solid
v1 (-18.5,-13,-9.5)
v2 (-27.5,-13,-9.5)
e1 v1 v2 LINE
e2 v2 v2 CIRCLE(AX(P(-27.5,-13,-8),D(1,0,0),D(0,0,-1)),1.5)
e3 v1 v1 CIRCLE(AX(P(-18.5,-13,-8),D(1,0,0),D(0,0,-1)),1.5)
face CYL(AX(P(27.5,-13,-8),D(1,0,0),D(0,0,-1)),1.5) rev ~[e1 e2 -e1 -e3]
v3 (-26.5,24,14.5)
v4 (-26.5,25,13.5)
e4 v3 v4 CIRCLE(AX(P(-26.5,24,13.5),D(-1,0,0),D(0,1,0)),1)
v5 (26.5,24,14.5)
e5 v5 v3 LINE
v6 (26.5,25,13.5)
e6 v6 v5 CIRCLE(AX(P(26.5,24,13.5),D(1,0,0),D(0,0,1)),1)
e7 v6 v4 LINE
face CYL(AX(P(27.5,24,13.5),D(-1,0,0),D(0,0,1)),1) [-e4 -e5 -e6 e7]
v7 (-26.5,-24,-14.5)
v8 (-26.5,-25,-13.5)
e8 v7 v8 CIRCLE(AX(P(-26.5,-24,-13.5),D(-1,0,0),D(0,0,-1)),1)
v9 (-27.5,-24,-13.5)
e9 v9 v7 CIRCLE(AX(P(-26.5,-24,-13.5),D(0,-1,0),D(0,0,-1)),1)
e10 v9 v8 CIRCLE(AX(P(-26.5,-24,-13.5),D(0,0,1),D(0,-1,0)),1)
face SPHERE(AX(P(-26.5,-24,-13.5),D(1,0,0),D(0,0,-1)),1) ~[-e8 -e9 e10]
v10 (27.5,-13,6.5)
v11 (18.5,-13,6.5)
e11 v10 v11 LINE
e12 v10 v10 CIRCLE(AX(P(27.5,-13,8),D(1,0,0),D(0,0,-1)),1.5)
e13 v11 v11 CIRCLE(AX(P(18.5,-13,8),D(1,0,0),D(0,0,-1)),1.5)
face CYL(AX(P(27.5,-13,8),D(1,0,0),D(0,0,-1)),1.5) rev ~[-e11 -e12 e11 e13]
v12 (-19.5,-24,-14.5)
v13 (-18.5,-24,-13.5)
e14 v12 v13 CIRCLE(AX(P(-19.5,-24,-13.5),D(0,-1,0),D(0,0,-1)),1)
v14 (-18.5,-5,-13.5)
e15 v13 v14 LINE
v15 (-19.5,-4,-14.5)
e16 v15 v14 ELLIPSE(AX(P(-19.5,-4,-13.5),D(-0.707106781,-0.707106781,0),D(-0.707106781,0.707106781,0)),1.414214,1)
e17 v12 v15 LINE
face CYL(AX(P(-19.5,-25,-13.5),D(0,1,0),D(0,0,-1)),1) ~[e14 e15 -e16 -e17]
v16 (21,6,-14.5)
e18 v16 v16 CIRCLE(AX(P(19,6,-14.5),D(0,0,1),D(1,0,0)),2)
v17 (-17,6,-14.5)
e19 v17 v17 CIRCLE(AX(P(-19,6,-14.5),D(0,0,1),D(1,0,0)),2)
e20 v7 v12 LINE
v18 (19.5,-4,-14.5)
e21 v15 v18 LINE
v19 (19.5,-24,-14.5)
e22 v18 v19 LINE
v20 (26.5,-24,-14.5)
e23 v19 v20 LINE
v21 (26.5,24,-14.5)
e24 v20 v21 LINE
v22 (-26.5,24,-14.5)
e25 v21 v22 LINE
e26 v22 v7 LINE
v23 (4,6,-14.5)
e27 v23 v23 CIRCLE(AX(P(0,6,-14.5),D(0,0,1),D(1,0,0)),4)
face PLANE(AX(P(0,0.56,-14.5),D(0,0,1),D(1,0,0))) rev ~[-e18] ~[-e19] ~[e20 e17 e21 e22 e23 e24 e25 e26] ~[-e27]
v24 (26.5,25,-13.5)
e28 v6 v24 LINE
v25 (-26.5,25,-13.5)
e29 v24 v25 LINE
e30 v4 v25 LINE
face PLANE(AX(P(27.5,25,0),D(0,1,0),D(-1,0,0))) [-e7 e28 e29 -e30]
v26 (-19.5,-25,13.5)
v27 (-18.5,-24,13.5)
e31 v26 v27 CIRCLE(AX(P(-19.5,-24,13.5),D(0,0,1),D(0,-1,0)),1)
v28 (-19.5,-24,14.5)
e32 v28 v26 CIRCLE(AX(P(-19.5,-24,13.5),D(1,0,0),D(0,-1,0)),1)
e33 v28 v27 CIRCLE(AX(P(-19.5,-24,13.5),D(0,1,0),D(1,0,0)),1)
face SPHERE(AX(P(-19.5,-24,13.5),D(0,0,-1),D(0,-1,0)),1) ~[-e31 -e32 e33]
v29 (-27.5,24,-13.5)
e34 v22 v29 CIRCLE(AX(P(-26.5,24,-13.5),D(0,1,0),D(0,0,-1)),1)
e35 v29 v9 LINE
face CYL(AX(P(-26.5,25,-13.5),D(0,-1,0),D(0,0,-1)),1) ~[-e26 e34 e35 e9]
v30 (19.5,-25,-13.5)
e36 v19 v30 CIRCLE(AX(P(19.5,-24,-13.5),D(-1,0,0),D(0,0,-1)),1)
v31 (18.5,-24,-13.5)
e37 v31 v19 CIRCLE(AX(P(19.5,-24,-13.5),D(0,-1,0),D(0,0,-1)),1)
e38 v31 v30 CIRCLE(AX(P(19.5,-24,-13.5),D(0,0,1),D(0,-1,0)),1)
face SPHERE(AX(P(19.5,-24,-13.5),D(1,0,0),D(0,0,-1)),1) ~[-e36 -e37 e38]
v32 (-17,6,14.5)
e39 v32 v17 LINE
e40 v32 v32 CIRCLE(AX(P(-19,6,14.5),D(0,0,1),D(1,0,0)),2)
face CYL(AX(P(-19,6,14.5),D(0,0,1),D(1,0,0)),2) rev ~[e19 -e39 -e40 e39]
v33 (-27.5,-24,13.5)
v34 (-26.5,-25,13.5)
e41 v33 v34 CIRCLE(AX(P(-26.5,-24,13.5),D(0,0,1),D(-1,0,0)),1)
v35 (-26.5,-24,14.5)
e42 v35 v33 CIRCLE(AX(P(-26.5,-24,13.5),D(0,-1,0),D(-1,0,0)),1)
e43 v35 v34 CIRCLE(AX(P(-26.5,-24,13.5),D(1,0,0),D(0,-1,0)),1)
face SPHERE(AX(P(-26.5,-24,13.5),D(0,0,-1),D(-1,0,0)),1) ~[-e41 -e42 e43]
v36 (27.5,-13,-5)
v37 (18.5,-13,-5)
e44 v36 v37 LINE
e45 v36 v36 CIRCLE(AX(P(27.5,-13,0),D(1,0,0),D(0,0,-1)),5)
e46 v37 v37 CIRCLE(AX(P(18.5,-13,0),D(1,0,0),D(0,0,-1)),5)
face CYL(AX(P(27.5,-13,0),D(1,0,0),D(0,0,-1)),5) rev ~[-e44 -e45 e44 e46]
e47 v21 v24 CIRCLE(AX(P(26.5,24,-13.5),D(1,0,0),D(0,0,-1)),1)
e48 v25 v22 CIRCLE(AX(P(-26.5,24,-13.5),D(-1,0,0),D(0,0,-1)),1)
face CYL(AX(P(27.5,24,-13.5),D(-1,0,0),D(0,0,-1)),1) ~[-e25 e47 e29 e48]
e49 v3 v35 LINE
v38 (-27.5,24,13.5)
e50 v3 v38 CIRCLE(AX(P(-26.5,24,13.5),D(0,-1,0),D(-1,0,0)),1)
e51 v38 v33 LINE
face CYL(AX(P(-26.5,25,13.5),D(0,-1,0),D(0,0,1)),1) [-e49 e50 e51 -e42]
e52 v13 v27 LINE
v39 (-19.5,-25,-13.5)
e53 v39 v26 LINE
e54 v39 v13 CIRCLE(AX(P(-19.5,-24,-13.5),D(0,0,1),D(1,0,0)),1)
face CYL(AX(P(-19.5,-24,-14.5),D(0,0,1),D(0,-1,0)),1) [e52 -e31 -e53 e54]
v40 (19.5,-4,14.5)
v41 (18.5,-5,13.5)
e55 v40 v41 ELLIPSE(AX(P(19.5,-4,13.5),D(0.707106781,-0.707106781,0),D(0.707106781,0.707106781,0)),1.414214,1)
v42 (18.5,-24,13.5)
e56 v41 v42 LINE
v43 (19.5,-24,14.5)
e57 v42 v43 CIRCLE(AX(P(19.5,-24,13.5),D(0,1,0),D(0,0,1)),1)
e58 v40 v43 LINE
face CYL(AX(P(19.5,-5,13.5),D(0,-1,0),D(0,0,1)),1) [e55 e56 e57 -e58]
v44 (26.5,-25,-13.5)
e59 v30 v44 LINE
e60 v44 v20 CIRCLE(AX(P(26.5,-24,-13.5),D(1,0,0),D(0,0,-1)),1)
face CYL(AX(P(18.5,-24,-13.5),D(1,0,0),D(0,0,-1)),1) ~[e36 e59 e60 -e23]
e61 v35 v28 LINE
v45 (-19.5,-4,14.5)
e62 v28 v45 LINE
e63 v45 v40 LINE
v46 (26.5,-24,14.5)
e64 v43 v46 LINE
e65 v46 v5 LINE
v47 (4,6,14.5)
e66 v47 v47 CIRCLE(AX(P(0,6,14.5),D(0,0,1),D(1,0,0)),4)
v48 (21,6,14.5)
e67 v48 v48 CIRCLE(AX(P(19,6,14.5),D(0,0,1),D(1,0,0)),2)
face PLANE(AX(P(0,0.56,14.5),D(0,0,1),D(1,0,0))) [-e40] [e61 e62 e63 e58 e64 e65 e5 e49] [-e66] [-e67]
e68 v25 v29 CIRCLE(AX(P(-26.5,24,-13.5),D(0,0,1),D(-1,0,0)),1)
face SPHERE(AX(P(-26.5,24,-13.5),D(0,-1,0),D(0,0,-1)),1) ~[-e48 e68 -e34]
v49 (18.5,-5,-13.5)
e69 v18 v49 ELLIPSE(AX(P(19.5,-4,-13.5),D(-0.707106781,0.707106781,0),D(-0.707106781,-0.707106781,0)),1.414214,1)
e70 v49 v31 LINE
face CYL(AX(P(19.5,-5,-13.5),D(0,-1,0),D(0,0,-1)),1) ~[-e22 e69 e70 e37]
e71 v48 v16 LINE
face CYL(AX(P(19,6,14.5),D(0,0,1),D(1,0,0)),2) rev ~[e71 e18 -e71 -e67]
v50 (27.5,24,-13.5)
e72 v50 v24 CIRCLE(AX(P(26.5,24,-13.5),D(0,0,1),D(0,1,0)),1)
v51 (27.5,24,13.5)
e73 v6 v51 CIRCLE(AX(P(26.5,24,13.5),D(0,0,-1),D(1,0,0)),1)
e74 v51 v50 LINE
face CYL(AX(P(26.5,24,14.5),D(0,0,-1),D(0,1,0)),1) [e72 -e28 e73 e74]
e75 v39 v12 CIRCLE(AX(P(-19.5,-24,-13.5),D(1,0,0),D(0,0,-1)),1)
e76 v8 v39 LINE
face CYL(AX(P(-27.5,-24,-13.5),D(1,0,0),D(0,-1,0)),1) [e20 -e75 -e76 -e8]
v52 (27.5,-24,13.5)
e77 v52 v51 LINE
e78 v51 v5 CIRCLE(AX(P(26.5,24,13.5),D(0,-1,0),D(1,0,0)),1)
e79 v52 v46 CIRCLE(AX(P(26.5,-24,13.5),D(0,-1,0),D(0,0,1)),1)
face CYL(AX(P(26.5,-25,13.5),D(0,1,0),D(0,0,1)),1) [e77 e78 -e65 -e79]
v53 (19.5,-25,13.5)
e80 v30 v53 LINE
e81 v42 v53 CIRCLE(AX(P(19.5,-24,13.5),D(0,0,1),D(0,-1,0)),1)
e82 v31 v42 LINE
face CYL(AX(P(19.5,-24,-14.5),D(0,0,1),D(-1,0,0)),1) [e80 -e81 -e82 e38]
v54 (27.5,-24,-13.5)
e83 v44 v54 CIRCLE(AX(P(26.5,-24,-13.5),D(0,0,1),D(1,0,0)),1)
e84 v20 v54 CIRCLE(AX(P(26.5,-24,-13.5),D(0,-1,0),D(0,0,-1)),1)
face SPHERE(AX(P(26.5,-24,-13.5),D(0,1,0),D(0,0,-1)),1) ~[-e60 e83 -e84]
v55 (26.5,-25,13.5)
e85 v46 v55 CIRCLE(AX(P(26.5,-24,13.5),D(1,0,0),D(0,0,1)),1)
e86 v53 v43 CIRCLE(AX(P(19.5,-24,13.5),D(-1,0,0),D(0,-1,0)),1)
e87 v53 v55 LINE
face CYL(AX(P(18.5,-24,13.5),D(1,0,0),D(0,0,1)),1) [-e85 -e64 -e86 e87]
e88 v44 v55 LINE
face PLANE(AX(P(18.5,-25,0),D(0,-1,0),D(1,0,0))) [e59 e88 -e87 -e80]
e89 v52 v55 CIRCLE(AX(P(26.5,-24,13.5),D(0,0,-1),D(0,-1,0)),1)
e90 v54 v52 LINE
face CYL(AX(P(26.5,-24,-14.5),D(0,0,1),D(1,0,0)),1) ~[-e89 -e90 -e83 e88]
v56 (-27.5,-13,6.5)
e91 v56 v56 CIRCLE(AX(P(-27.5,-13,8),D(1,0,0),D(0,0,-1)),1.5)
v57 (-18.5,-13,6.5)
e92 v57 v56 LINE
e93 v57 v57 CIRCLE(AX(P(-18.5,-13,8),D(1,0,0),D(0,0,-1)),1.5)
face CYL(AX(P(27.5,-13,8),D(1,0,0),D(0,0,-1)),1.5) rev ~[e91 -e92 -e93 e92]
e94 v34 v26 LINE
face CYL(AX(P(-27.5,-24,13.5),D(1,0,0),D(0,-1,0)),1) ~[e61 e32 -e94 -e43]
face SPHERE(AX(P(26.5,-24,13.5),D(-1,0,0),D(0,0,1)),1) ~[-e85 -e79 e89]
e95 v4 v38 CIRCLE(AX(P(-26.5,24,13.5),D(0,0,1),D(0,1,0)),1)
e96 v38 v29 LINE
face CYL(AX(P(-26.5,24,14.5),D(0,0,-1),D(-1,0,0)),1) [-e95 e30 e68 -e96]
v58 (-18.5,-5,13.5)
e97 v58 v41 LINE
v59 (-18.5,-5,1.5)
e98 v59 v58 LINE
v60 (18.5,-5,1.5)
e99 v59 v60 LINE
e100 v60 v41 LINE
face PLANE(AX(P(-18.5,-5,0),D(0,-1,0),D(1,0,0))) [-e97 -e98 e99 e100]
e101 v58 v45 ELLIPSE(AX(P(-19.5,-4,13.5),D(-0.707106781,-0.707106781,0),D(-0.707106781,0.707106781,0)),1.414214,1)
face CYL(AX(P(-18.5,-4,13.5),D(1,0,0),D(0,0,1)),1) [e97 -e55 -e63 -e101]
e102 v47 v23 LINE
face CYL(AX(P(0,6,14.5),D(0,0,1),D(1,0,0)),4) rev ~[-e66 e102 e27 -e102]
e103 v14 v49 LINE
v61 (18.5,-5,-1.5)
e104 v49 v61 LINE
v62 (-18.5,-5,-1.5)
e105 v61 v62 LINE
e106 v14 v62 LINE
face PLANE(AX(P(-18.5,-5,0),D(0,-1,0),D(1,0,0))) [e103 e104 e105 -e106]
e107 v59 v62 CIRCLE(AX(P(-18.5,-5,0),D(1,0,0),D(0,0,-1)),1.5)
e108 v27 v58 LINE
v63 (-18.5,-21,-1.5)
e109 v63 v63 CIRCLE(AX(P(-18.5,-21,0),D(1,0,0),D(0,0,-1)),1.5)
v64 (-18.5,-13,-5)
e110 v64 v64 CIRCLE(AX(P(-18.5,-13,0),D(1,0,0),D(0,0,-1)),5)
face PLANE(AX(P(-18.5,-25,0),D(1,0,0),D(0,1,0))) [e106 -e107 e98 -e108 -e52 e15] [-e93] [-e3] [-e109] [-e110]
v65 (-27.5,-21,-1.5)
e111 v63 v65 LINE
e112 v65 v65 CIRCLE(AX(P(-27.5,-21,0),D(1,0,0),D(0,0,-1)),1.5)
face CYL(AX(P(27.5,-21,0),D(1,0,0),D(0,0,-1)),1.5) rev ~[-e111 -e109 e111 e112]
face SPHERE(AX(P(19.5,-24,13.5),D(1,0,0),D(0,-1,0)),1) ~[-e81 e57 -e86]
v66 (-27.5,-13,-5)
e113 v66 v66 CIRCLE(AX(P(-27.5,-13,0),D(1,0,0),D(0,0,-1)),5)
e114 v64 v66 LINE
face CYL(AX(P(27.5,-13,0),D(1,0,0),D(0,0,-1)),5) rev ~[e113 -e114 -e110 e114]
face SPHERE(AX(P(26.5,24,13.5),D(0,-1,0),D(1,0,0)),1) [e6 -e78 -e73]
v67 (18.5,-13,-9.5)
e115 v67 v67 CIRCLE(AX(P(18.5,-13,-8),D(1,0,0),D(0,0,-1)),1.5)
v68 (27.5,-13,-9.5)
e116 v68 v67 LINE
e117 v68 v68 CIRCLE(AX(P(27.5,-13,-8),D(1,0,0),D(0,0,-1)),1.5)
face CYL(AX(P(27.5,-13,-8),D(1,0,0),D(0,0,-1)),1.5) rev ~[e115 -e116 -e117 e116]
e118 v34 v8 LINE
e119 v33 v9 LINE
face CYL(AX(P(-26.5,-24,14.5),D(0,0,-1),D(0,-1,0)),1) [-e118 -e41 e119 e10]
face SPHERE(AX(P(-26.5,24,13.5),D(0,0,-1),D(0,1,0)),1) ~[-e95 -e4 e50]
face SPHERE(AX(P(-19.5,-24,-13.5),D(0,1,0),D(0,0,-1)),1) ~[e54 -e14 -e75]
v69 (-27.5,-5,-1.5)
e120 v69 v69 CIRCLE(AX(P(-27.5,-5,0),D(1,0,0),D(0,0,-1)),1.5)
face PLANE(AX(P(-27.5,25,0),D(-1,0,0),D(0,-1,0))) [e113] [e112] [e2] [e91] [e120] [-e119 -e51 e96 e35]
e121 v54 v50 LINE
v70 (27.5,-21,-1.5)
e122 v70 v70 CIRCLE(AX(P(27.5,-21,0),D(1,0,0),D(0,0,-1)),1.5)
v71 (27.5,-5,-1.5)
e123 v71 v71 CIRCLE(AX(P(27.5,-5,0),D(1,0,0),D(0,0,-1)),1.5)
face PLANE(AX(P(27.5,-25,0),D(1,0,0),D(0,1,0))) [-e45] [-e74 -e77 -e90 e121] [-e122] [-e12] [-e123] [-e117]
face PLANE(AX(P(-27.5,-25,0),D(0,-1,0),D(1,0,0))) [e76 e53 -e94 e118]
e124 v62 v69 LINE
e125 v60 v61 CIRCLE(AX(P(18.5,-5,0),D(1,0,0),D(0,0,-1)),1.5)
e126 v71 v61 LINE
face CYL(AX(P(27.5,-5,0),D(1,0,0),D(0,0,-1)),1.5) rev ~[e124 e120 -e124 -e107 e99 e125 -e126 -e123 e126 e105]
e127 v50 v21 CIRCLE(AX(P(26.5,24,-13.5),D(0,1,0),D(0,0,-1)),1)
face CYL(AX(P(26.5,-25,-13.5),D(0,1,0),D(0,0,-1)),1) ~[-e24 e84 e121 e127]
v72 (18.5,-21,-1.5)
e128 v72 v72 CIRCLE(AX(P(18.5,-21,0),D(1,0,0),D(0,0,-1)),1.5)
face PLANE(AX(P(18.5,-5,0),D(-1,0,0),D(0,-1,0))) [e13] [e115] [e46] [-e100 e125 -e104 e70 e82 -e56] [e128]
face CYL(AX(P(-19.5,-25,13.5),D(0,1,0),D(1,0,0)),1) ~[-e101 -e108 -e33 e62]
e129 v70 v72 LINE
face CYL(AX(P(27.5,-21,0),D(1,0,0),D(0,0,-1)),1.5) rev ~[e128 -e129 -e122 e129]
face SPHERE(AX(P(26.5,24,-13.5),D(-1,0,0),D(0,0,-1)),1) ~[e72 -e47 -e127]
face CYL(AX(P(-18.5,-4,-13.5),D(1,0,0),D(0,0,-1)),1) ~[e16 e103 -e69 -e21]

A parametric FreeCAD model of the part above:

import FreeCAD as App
import Part
import Sketcher
from FreeCAD import Vector


def edges_at(feature, points):
    """Names of the edges that pass closest to the given points."""
    edges = feature.Shape.Edges
    near = lambda p: min(range(len(edges)), key=lambda i: edges[i].distToShape(Part.Vertex(*p))[0])
    return sorted({f"Edge{near(p) + 1}" for p in points})

doc = App.newDocument("Part")
body = doc.addObject("PartDesign::Body", "Body")

sketch1 = body.newObject("Sketcher::SketchObject", "Sketch")
sketch1.AttachmentSupport = (doc.getObject("XY_Plane"), [""])
sketch1.MapMode = "FlatFace"
sketch1.addGeometry(Part.LineSegment(Vector(-28, -25, 0), Vector(-18, -25, 0)), False)
sketch1.addGeometry(Part.LineSegment(Vector(-18, -25, 0), Vector(-18, -5, 0)), False)
sketch1.addGeometry(Part.LineSegment(Vector(-18, -5, 0), Vector(18, -5, 0)), False)
sketch1.addGeometry(Part.LineSegment(Vector(18, -5, 0), Vector(18, -25, 0)), False)
sketch1.addGeometry(Part.LineSegment(Vector(18, -25, 0), Vector(28, -25, 0)), False)
sketch1.addGeometry(Part.LineSegment(Vector(28, -25, 0), Vector(28, 25, 0)), False)
sketch1.addGeometry(Part.LineSegment(Vector(28, 25, 0), Vector(-28, 25, 0)), False)
sketch1.addGeometry(Part.LineSegment(Vector(-28, 25, 0), Vector(-28, -25, 0)), False)
sketch1.addConstraint(Sketcher.Constraint("Coincident", 0, 2, 1, 1))
sketch1.addConstraint(Sketcher.Constraint("Coincident", 1, 2, 2, 1))
sketch1.addConstraint(Sketcher.Constraint("Coincident", 2, 2, 3, 1))
sketch1.addConstraint(Sketcher.Constraint("Coincident", 3, 2, 4, 1))
sketch1.addConstraint(Sketcher.Constraint("Coincident", 4, 2, 5, 1))
sketch1.addConstraint(Sketcher.Constraint("Coincident", 5, 2, 6, 1))
sketch1.addConstraint(Sketcher.Constraint("Coincident", 6, 2, 7, 1))
sketch1.addConstraint(Sketcher.Constraint("Coincident", 7, 2, 0, 1))
sketch1.addConstraint(Sketcher.Constraint("Horizontal", 0))
sketch1.addConstraint(Sketcher.Constraint("Vertical", 1))
sketch1.addConstraint(Sketcher.Constraint("Horizontal", 2))
sketch1.addConstraint(Sketcher.Constraint("Vertical", 3))
sketch1.addConstraint(Sketcher.Constraint("Horizontal", 4))
sketch1.addConstraint(Sketcher.Constraint("Vertical", 5))
sketch1.addConstraint(Sketcher.Constraint("Horizontal", 6))
sketch1.addConstraint(Sketcher.Constraint("Vertical", 7))
sketch1.addConstraint(Sketcher.Constraint("Symmetric", 4, 2, 6, 2, -1, 1))
sketch1.addConstraint(Sketcher.Constraint("Symmetric", 0, 2, 3, 2, -2))
sketch1.addConstraint(Sketcher.Constraint("DistanceX", 0, 1, 0, 2, 9.0))
sketch1.addConstraint(Sketcher.Constraint("DistanceX", 2, 1, 2, 2, 37.0))
sketch1.addConstraint(Sketcher.Constraint("DistanceY", 1, 1, 1, 2, 20.0))
sketch1.addConstraint(Sketcher.Constraint("DistanceY", 5, 1, 5, 2, 50.0))
pad1 = body.newObject("PartDesign::Pad", "Pad")
pad1.Profile = sketch1
pad1.Length = 29
pad1.Midplane = True

sketch2 = body.newObject("Sketcher::SketchObject", "Sketch001")
sketch2.AttachmentSupport = (doc.getObject("YZ_Plane"), [""])
sketch2.MapMode = "FlatFace"
sketch2.AttachmentOffset = App.Placement(Vector(0, 0, 27.5), App.Rotation())
sketch2.addGeometry(Part.Circle(Vector(-13, 0, 0), Vector(0, 0, 1), 5), False)
sketch2.addGeometry(Part.Circle(Vector(-21, 0, 0), Vector(0, 0, 1), 1.5), False)
sketch2.addGeometry(Part.Circle(Vector(-13, 8, 0), Vector(0, 0, 1), 1.5), False)
sketch2.addGeometry(Part.Circle(Vector(-5, 0, 0), Vector(0, 0, 1), 1.5), False)
sketch2.addGeometry(Part.Circle(Vector(-13, -8, 0), Vector(0, 0, 1), 1.5), False)
sketch2.addConstraint(Sketcher.Constraint("Equal", 1, 2))
sketch2.addConstraint(Sketcher.Constraint("Equal", 2, 3))
sketch2.addConstraint(Sketcher.Constraint("Equal", 3, 4))
sketch2.addConstraint(Sketcher.Constraint("Symmetric", 2, 3, 4, 3, -1))
sketch2.addConstraint(Sketcher.Constraint("PointOnObject", 0, 3, -1))
sketch2.addConstraint(Sketcher.Constraint("PointOnObject", 1, 3, -1))
sketch2.addConstraint(Sketcher.Constraint("PointOnObject", 3, 3, -1))
sketch2.addConstraint(Sketcher.Constraint("Vertical", 0, 3, 2, 3))
sketch2.addConstraint(Sketcher.Constraint("Diameter", 0, 10.0))
sketch2.addConstraint(Sketcher.Constraint("Diameter", 1, 3.0))
sketch2.addConstraint(Sketcher.Constraint("DistanceX", 0, 3, -1, 1, 13.0))
sketch2.addConstraint(Sketcher.Constraint("DistanceX", 1, 3, -1, 1, 21.0))
sketch2.addConstraint(Sketcher.Constraint("DistanceY", -1, 1, 2, 3, 8.0))
sketch2.addConstraint(Sketcher.Constraint("DistanceX", 3, 3, -1, 1, 5.0))
pocket1 = body.newObject("PartDesign::Pocket", "Pocket")
pocket1.Profile = sketch2
pocket1.Type = "ThroughAll"

sketch3 = body.newObject("Sketcher::SketchObject", "Sketch002")
sketch3.AttachmentSupport = (doc.getObject("XY_Plane"), [""])
sketch3.MapMode = "FlatFace"
sketch3.AttachmentOffset = App.Placement(Vector(0, 0, 14.5), App.Rotation())
sketch3.addGeometry(Part.Circle(Vector(0, 6, 0), Vector(0, 0, 1), 4), False)
sketch3.addGeometry(Part.Circle(Vector(-19, 6, 0), Vector(0, 0, 1), 2), False)
sketch3.addGeometry(Part.Circle(Vector(19, 6, 0), Vector(0, 0, 1), 2), False)
sketch3.addConstraint(Sketcher.Constraint("Equal", 1, 2))
sketch3.addConstraint(Sketcher.Constraint("Symmetric", 1, 3, 2, 3, -2))
sketch3.addConstraint(Sketcher.Constraint("PointOnObject", 0, 3, -2))
sketch3.addConstraint(Sketcher.Constraint("Horizontal", 0, 3, 1, 3))
sketch3.addConstraint(Sketcher.Constraint("Diameter", 0, 8.0))
sketch3.addConstraint(Sketcher.Constraint("Diameter", 1, 4.0))
sketch3.addConstraint(Sketcher.Constraint("DistanceY", -1, 1, 0, 3, 6.0))
sketch3.addConstraint(Sketcher.Constraint("DistanceX", 1, 3, -1, 1, 19.0))
pocket2 = body.newObject("PartDesign::Pocket", "Pocket001")
pocket2.Profile = sketch3
pocket2.Type = "ThroughAll"
doc.recompute()

fillet = body.newObject("PartDesign::Fillet", "Fillet")
fillet.Base = (pocket2, edges_at(pocket2, [
    (-18.5, -15, -14.5),
    (-23, -25, -14.5),
    (23, -25, 14.5),
    (-27.5, 0, -14.5),
    (0, 25, -14.5),
    (27.5, 0, -14.5),
    (23, -25, -14.5),
    (18.5, -15, -14.5),
    (27.5, 0, 14.5),
    (-18.5, -25, 0),
    (-27.5, -25, 0),
    (-27.5, 25, 0),
    (27.5, 25, 0),
    (27.5, -25, 0),
    (18.5, -25, 0),
    (0, 25, 14.5),
    (-27.5, 0, 14.5),
    (-23, -25, 14.5),
    (-18.5, -15, 14.5),
    (0, -5, 14.5),
    (18.5, -15, 14.5),
    (0, -5, -14.5),
]))
fillet.Radius = 1

doc.recompute()
